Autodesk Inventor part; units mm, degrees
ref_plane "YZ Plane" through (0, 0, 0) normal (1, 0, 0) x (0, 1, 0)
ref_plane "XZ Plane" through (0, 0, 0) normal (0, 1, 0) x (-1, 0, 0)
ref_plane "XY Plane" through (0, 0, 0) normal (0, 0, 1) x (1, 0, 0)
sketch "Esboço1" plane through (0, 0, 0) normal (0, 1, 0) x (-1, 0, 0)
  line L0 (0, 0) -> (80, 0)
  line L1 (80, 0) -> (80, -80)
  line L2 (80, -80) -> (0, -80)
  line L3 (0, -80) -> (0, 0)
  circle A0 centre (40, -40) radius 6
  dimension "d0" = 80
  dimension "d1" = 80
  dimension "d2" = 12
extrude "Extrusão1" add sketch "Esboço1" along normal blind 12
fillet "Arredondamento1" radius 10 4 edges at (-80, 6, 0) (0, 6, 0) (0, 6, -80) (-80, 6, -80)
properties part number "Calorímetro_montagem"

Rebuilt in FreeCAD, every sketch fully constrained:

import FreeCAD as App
import Part
import Sketcher
Q = App.Units.Quantity


def edges_at(feature, points):
    """Names of the edges that pass closest to the given points."""
    edges = feature.Shape.Edges
    near = lambda p: min(range(len(edges)), key=lambda i: edges[i].distToShape(Part.Vertex(*p))[0])
    return sorted({f"Edge{near(p) + 1}" for p in points})


def add_polygon(sketch, points):
    """Adds a closed chain of lines whose ends are joined by coincident constraints."""
    first, n = sketch.GeometryCount, len(points)
    for a, b in zip(points, points[1:] + points[:1]):
        sketch.addGeometry(Part.LineSegment(App.Vector(*a, 0), App.Vector(*b, 0)), False)
    for i in range(n):
        sketch.addConstraint(Sketcher.Constraint("Coincident", first + i, 2, first + (i + 1) % n, 1))

doc = App.newDocument("Part")
body = doc.addObject("PartDesign::Body", "Body")

sketch1 = doc.addObject("Sketcher::SketchObject", "Sketch")
body.addObject(sketch1)
sketch1.AttachmentSupport = (doc.XZ_Plane, [""])
sketch1.MapMode = "FlatFace"
add_polygon(sketch1, [(-80, 0), (0, 0), (0, -80), (-80, -80)])
sketch1.addGeometry(Part.Circle(App.Vector(-40, -40, 0), App.Vector(0, 0, 1), 6), False)
sketch1.addConstraint([
    Sketcher.Constraint("Horizontal", 0),
    Sketcher.Constraint("Vertical", 1),
    Sketcher.Constraint("Horizontal", 2),
    Sketcher.Constraint("Vertical", 3),
    Sketcher.Constraint("Coincident", 0, 2, -1, 1),
    Sketcher.Constraint("Equal", 2, 1),
    Sketcher.Constraint("Diameter", 4, Q("12 mm")),
    Sketcher.Constraint("DistanceX", 0, 1, 0, 2, Q("80 mm")),
    Sketcher.Constraint("DistanceX", 4, 3, -1, 1, Q("40 mm")),
    Sketcher.Constraint("DistanceY", 4, 3, -1, 1, Q("40 mm")),
])
pad1 = doc.addObject("PartDesign::Pad", "Pad")
body.addObject(pad1)
pad1.Profile = sketch1
pad1.Length = 12
pad1.Reversed = True
doc.recompute()

fillet = doc.addObject("PartDesign::Fillet", "Fillet")
body.addObject(fillet)
fillet.Base = (pad1, edges_at(pad1, [
    (-80, 6, 0),
    (0, 6, 0),
    (0, 6, -80),
    (-80, 6, -80),
]))
fillet.Radius = 10

doc.recompute()
